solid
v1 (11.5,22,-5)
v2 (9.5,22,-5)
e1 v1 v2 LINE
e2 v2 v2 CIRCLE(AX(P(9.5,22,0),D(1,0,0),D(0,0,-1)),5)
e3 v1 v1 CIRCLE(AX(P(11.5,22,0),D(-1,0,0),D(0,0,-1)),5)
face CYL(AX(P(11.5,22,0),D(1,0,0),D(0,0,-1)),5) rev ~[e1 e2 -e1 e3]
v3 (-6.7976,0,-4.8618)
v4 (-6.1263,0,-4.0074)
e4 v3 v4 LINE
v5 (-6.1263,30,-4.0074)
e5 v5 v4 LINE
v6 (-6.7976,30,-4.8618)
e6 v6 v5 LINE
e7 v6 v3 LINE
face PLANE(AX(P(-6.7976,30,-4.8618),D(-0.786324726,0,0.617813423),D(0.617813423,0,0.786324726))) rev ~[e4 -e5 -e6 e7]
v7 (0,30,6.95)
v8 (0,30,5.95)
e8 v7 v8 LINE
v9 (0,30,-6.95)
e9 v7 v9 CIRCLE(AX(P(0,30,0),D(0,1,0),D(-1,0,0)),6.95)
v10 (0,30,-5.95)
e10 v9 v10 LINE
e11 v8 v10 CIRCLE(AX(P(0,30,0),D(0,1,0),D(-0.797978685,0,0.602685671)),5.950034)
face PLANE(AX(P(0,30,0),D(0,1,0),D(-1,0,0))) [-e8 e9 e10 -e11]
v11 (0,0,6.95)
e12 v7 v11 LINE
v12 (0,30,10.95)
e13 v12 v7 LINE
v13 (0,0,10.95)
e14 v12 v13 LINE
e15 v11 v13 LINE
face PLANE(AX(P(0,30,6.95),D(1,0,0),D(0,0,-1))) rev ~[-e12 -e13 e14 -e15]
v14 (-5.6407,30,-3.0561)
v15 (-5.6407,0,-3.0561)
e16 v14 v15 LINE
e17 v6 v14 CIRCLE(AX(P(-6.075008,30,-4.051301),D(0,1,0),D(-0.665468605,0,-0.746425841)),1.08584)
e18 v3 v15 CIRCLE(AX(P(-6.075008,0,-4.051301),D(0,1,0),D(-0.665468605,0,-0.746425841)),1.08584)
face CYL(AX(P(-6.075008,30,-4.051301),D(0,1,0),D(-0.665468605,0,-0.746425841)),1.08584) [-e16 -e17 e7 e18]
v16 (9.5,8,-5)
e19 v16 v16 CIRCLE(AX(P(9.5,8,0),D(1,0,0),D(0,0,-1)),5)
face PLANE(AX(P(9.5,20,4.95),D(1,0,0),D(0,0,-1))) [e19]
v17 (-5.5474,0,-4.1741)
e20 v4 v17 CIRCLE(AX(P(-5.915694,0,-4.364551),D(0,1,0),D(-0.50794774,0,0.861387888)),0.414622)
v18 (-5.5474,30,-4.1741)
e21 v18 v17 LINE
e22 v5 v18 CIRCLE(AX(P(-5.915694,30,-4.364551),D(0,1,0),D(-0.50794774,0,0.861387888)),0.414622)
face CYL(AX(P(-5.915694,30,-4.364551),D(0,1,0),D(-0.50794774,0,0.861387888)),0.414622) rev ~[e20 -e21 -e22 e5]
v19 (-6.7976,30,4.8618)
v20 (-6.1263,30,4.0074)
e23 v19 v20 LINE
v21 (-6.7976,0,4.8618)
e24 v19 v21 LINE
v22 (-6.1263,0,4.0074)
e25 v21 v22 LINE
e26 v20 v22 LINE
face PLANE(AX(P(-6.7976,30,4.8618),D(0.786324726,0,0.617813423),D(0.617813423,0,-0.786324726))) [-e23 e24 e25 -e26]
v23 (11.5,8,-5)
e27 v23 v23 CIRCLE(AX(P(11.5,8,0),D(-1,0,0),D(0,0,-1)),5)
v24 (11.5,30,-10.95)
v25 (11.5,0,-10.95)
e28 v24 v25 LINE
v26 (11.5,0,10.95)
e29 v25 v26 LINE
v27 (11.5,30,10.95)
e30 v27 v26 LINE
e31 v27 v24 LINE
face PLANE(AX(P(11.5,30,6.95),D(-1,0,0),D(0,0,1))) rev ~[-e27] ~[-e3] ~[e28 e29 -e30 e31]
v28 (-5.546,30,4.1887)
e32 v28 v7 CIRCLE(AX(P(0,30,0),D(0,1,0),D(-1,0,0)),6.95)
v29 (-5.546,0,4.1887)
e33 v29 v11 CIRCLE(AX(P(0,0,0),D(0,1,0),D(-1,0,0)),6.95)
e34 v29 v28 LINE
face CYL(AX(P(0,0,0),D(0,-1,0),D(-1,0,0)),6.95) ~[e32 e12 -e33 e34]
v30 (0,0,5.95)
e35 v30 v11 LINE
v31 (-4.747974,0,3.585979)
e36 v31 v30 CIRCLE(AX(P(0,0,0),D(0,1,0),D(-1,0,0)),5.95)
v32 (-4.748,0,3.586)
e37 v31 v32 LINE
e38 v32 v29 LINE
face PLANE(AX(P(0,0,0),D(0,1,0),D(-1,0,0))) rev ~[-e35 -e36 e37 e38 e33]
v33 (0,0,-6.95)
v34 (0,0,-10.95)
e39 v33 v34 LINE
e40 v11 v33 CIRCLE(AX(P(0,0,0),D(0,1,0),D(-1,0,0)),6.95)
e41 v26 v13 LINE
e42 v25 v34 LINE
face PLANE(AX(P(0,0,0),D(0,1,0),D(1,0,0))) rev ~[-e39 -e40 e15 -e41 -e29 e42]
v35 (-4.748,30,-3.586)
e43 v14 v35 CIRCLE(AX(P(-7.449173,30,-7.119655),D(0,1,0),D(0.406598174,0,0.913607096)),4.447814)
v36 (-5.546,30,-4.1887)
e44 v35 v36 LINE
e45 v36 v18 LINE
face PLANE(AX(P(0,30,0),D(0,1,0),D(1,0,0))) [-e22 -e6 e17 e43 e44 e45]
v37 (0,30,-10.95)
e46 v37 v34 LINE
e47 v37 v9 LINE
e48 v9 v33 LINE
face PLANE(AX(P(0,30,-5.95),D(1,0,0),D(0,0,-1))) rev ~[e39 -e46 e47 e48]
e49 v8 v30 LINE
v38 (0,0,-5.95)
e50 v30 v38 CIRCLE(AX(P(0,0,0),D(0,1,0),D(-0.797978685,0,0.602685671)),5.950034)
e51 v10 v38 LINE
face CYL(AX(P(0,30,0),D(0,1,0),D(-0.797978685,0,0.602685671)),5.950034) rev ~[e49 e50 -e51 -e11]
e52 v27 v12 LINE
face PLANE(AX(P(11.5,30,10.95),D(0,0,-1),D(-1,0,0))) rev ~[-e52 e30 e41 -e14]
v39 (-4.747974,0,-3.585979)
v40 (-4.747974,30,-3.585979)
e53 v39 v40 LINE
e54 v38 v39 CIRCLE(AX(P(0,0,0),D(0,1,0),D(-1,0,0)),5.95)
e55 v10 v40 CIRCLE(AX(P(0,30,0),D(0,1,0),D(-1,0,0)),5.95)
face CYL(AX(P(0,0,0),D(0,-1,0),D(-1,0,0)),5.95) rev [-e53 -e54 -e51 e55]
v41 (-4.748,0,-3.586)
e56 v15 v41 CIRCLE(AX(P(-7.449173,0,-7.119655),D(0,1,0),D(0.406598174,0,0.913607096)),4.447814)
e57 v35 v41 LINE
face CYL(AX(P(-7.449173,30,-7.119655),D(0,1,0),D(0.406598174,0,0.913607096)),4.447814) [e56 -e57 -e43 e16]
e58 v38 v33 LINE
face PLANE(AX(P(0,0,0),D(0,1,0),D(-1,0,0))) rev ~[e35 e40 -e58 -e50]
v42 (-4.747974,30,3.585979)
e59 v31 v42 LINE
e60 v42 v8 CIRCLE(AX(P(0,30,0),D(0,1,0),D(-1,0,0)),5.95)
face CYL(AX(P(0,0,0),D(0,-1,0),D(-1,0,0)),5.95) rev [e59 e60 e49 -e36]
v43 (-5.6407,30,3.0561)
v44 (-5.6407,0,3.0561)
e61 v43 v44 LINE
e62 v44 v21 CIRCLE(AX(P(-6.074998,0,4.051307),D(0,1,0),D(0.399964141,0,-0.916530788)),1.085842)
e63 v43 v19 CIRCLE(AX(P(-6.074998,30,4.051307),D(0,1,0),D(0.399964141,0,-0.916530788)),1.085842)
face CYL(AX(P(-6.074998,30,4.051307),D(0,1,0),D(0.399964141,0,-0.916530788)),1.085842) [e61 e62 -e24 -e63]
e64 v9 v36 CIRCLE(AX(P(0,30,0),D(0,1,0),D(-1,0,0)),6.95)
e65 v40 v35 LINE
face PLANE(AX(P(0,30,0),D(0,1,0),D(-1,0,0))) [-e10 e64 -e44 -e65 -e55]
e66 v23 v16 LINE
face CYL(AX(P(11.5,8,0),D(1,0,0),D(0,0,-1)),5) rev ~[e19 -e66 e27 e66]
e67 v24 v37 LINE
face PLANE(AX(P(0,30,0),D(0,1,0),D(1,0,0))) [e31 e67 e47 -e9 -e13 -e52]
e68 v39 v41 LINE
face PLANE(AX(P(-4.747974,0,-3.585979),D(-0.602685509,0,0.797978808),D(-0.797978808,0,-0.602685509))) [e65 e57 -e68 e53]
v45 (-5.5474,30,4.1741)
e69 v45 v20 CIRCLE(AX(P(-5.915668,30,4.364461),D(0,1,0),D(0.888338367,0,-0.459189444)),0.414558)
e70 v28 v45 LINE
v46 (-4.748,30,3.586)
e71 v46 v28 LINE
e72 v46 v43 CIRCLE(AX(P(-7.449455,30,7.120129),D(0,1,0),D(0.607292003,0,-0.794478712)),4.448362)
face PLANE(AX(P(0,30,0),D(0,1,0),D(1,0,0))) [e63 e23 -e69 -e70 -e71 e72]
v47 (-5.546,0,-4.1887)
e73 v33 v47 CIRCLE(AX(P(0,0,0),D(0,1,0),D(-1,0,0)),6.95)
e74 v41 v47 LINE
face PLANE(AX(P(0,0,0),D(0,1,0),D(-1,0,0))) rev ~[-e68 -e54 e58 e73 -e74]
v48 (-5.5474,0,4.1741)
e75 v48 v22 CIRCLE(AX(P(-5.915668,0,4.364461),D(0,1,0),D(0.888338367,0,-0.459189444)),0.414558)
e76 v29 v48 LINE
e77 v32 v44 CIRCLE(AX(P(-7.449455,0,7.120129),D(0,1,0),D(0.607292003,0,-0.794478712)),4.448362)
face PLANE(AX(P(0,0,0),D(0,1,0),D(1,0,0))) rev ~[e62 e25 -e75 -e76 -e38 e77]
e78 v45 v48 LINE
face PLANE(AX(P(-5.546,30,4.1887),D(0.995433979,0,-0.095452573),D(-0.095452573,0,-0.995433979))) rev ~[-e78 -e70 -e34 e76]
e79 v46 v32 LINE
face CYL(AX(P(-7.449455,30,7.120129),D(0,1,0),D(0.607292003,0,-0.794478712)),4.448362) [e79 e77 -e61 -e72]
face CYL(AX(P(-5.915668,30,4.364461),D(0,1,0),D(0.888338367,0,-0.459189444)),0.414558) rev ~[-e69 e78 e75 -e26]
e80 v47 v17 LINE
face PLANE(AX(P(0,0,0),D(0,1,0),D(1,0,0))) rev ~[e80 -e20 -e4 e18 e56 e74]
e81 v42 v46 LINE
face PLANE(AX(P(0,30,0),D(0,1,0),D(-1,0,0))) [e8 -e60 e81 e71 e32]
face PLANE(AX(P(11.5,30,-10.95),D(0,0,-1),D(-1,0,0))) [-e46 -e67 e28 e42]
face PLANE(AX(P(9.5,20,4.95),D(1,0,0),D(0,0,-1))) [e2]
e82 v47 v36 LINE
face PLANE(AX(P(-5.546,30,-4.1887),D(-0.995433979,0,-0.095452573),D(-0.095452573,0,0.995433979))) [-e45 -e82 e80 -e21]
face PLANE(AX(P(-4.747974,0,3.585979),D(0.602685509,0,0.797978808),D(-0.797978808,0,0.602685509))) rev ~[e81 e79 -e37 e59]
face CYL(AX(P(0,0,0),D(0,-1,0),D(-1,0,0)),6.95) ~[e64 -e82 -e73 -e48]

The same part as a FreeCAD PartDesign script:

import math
import FreeCAD as App
import Part
import Sketcher
from FreeCAD import Vector
Q = App.Units.Quantity

doc = App.newDocument("Part")
body = doc.addObject("PartDesign::Body", "Body")

# Sketch on XZ plane
sketch1 = doc.addObject("Sketcher::SketchObject", "Sketch")
body.addObject(sketch1)
sketch1.AttachmentSupport = (doc.XZ_Plane, [""])
sketch1.MapMode = "FlatFace"
sketch1.addGeometry(Part.ArcOfCircle(Part.Circle(Vector(0, 0, 0), Vector(0, 0, 1), 6), math.radians(-143), math.radians(143)), False)
sketch1.addGeometry(Part.LineSegment(Vector(-4.7, 3.6, 0), Vector(-5.5, 4.2, 0)), False)
sketch1.addGeometry(Part.ArcOfCircle(Part.Circle(Vector(0, 0, 0), Vector(0, 0, 1), 7), math.radians(-143), math.radians(143)), False)
sketch1.addGeometry(Part.LineSegment(Vector(-5.5, -4.2, 0), Vector(-4.7, -3.6, 0)), False)
sketch1.addConstraint(Sketcher.Constraint("Coincident", 0, 2, 1, 1))
sketch1.addConstraint(Sketcher.Constraint("Coincident", 1, 2, 2, 2))
sketch1.addConstraint(Sketcher.Constraint("Coincident", 2, 1, 3, 1))
sketch1.addConstraint(Sketcher.Constraint("Coincident", 3, 2, 0, 1))
sketch1.addConstraint(Sketcher.Constraint("Coincident", 0, 3, -1, 1))
sketch1.addConstraint(Sketcher.Constraint("Coincident", 2, 3, -1, 1))
sketch1.addConstraint(Sketcher.Constraint("Vertical", 1, 2, 2, 1))
sketch1.addConstraint(Sketcher.Constraint("Vertical", 0, 2, 3, 2))
sketch1.addConstraint(Sketcher.Constraint("Radius", 0, Q("5.95 mm")))
sketch1.addConstraint(Sketcher.Constraint("Radius", 2, Q("6.95 mm")))
sketch1.addConstraint(Sketcher.Constraint("DistanceX", 0, 2, -1, 1, Q("4.748 mm")))
sketch1.addConstraint(Sketcher.Constraint("DistanceX", 1, 2, -1, 1, Q("5.546 mm")))
pad1 = doc.addObject("PartDesign::Pad", "Pad")
body.addObject(pad1)
pad1.Profile = sketch1
pad1.Length = 30
pad1.Reversed = True

# Sketch on XZ plane
sketch2 = doc.addObject("Sketcher::SketchObject", "Sketch001")
body.addObject(sketch2)
sketch2.AttachmentSupport = (doc.XZ_Plane, [""])
sketch2.MapMode = "FlatFace"
sketch2.AttachmentOffset = App.Placement(Vector(0, 0, -30), App.Rotation())
sketch2.addGeometry(Part.LineSegment(Vector(0, 6, 0), Vector(0, 10.9, 0)), False)
sketch2.addGeometry(Part.LineSegment(Vector(0, 10.9, 0), Vector(11.5, 10.9, 0)), False)
sketch2.addGeometry(Part.LineSegment(Vector(11.5, 10.9, 0), Vector(11.5, -10.9, 0)), False)
sketch2.addGeometry(Part.LineSegment(Vector(11.5, -10.9, 0), Vector(0, -10.9, 0)), False)
sketch2.addGeometry(Part.LineSegment(Vector(0, -10.9, 0), Vector(0, -6, 0)), False)
sketch2.addGeometry(Part.ArcOfCircle(Part.Circle(Vector(0, 0, 0), Vector(0, 0, 1), 6), math.radians(-90), math.radians(90)), False)
sketch2.addConstraint(Sketcher.Constraint("Coincident", 0, 2, 1, 1))
sketch2.addConstraint(Sketcher.Constraint("Coincident", 1, 2, 2, 1))
sketch2.addConstraint(Sketcher.Constraint("Coincident", 2, 2, 3, 1))
sketch2.addConstraint(Sketcher.Constraint("Coincident", 3, 2, 4, 1))
sketch2.addConstraint(Sketcher.Constraint("Coincident", 4, 2, 5, 1))
sketch2.addConstraint(Sketcher.Constraint("Coincident", 5, 2, 0, 1))
sketch2.addConstraint(Sketcher.Constraint("Vertical", 0))
sketch2.addConstraint(Sketcher.Constraint("Horizontal", 1))
sketch2.addConstraint(Sketcher.Constraint("Vertical", 2))
sketch2.addConstraint(Sketcher.Constraint("Horizontal", 3))
sketch2.addConstraint(Sketcher.Constraint("Vertical", 4))
sketch2.addConstraint(Sketcher.Constraint("Coincident", 5, 3, -1, 1))
sketch2.addConstraint(Sketcher.Constraint("Symmetric", 0, 2, 3, 2, -1, 1))
sketch2.addConstraint(Sketcher.Constraint("PointOnObject", 0, 2, -2))
sketch2.addConstraint(Sketcher.Constraint("DistanceY", 0, 1, 0, 2, Q("5 mm")))
sketch2.addConstraint(Sketcher.Constraint("DistanceY", 2, 2, 2, 1, Q("21.9 mm")))
sketch2.addConstraint(Sketcher.Constraint("DistanceX", 1, 1, 1, 2, Q("11.5 mm")))
pad2 = doc.addObject("PartDesign::Pad", "Pad001")
body.addObject(pad2)
pad2.Profile = sketch2
pad2.Length = 30

# Sketch on YZ plane
sketch3 = doc.addObject("Sketcher::SketchObject", "Sketch002")
body.addObject(sketch3)
sketch3.AttachmentSupport = (doc.YZ_Plane, [""])
sketch3.MapMode = "FlatFace"
sketch3.AttachmentOffset = App.Placement(Vector(0, 0, 11.5), App.Rotation())
sketch3.addGeometry(Part.Circle(Vector(8, 0, 0), Vector(0, 0, 1), 5), False)
sketch3.addGeometry(Part.Circle(Vector(22, 0, 0), Vector(0, 0, 1), 5), False)
sketch3.addConstraint(Sketcher.Constraint("Equal", 0, 1))
sketch3.addConstraint(Sketcher.Constraint("PointOnObject", 0, 3, -1))
sketch3.addConstraint(Sketcher.Constraint("PointOnObject", 1, 3, -1))
sketch3.addConstraint(Sketcher.Constraint("Diameter", 0, Q("10 mm")))
sketch3.addConstraint(Sketcher.Constraint("DistanceX", -1, 1, 0, 3, Q("8 mm")))
sketch3.addConstraint(Sketcher.Constraint("DistanceX", -1, 1, 1, 3, Q("22 mm")))
pocket1 = doc.addObject("PartDesign::Pocket", "Pocket")
body.addObject(pocket1)
pocket1.Profile = sketch3
pocket1.Length = 2

# Sketch on XZ plane
sketch4 = doc.addObject("Sketcher::SketchObject", "Sketch003")
body.addObject(sketch4)
sketch4.AttachmentSupport = (doc.XZ_Plane, [""])
sketch4.MapMode = "FlatFace"
sketch4.AttachmentOffset = App.Placement(Vector(0, 0, -30), App.Rotation())
sketch4.addGeometry(Part.LineSegment(Vector(-5.546, 4.189, 0), Vector(-4.748, 3.586, 0)), False)
sketch4.addGeometry(Part.ArcOfCircle(Part.Circle(Vector(-7.449, 7.12, 0), Vector(0, 0, 1), 4.448), math.radians(-66.01), math.radians(-52.61)), False)
sketch4.addGeometry(Part.ArcOfCircle(Part.Circle(Vector(-6.075, 4.051, 0), Vector(0, 0, 1), 1.086), math.radians(132), math.radians(294)), False)
sketch4.addGeometry(Part.LineSegment(Vector(-6.798, 4.862, 0), Vector(-6.126, 4.007, 0)), False)
sketch4.addGeometry(Part.ArcOfCircle(Part.Circle(Vector(-5.916, 4.364, 0), Vector(0, 0, 1), 0.415), math.radians(-121), math.radians(-27)), False)
sketch4.addGeometry(Part.LineSegment(Vector(-5.547, 4.174, 0), Vector(-5.546, 4.189, 0)), False)
sketch4.addGeometry(Part.ArcOfCircle(Part.Circle(Vector(-6.075, -4.051, 0), Vector(0, 0, 1), 1.086), math.radians(66), math.radians(228)), False)
sketch4.addGeometry(Part.ArcOfCircle(Part.Circle(Vector(-7.449, -7.12, 0), Vector(0, 0, 1), 4.448), math.radians(52.61), math.radians(66.01)), False)
sketch4.addGeometry(Part.LineSegment(Vector(-4.748, -3.586, 0), Vector(-5.546, -4.189, 0)), False)
sketch4.addGeometry(Part.LineSegment(Vector(-5.546, -4.189, 0), Vector(-5.547, -4.174, 0)), False)
sketch4.addGeometry(Part.ArcOfCircle(Part.Circle(Vector(-5.916, -4.364, 0), Vector(0, 0, 1), 0.415), math.radians(27), math.radians(121)), False)
sketch4.addGeometry(Part.LineSegment(Vector(-6.126, -4.007, 0), Vector(-6.798, -4.862, 0)), False)
sketch4.addConstraint(Sketcher.Constraint("Coincident", 0, 2, 1, 2))
sketch4.addConstraint(Sketcher.Constraint("Coincident", 1, 1, 2, 2))
sketch4.addConstraint(Sketcher.Constraint("Coincident", 2, 1, 3, 1))
sketch4.addConstraint(Sketcher.Constraint("Coincident", 3, 2, 4, 1))
sketch4.addConstraint(Sketcher.Constraint("Coincident", 4, 2, 5, 1))
sketch4.addConstraint(Sketcher.Constraint("Coincident", 5, 2, 0, 1))
sketch4.addConstraint(Sketcher.Constraint("Coincident", 6, 1, 7, 2))
sketch4.addConstraint(Sketcher.Constraint("Coincident", 7, 1, 8, 1))
sketch4.addConstraint(Sketcher.Constraint("Coincident", 8, 2, 9, 1))
sketch4.addConstraint(Sketcher.Constraint("Coincident", 9, 2, 10, 1))
sketch4.addConstraint(Sketcher.Constraint("Coincident", 10, 2, 11, 1))
sketch4.addConstraint(Sketcher.Constraint("Coincident", 11, 2, 6, 2))
sketch4.addConstraint(Sketcher.Constraint("Equal", 2, 6))
sketch4.addConstraint(Sketcher.Constraint("Equal", 1, 7))
sketch4.addConstraint(Sketcher.Constraint("Equal", 4, 10))
sketch4.addConstraint(Sketcher.Constraint("Symmetric", 2, 3, 6, 3, -1))
sketch4.addConstraint(Sketcher.Constraint("Symmetric", 1, 3, 7, 3, -1))
sketch4.addConstraint(Sketcher.Constraint("Symmetric", 4, 3, 10, 3, -1))
sketch4.addConstraint(Sketcher.Constraint("Symmetric", 5, 2, 8, 2, -1))
sketch4.addConstraint(Sketcher.Constraint("Vertical", 0, 2, 7, 1))
sketch4.addConstraint(Sketcher.Constraint("Vertical", 4, 2, 9, 2))
sketch4.addConstraint(Sketcher.Constraint("Vertical", 3, 2, 10, 2))
sketch4.addConstraint(Sketcher.Constraint("Vertical", 2, 1, 11, 2))
sketch4.addConstraint(Sketcher.Constraint("Radius", 2, Q("1.0858 mm")))
sketch4.addConstraint(Sketcher.Constraint("Distance", 0, Q("1 mm")))
sketch4.addConstraint(Sketcher.Constraint("Radius", 1, Q("4.448 mm")))
sketch4.addConstraint(Sketcher.Constraint("Radius", 4, Q("0.4146 mm")))
sketch4.addConstraint(Sketcher.Constraint("DistanceY", -1, 1, 1, 3, Q("7.12 mm")))
sketch4.addConstraint(Sketcher.Constraint("DistanceY", 1, 1, 0, 2, Q("0.53 mm")))
sketch4.addConstraint(Sketcher.Constraint("DistanceX", 2, 3, -1, 1, Q("6.075 mm")))
sketch4.addConstraint(Sketcher.Constraint("DistanceX", 0, 2, -1, 1, Q("4.748 mm")))
sketch4.addConstraint(Sketcher.Constraint("DistanceY", -1, 1, 0, 2, Q("3.586 mm")))
sketch4.addConstraint(Sketcher.Constraint("DistanceY", -1, 1, 4, 2, Q("4.174 mm")))
sketch4.addConstraint(Sketcher.Constraint("DistanceX", 5, 2, -1, 1, Q("5.546 mm")))
sketch4.addConstraint(Sketcher.Constraint("DistanceY", 10, 3, 4, 3, Q("8.729 mm")))
sketch4.addConstraint(Sketcher.Constraint("DistanceX", 4, 3, 1, 1, Q("0.275 mm")))
sketch4.addConstraint(Sketcher.Constraint("DistanceX", 2, 1, 4, 3, Q("0.882 mm")))
sketch4.addConstraint(Sketcher.Constraint("DistanceY", 3, 2, 2, 3, Q("0.044 mm")))
pad3 = doc.addObject("PartDesign::Pad", "Pad002")
body.addObject(pad3)
pad3.Profile = sketch4
pad3.Length = 30

doc.recompute()
